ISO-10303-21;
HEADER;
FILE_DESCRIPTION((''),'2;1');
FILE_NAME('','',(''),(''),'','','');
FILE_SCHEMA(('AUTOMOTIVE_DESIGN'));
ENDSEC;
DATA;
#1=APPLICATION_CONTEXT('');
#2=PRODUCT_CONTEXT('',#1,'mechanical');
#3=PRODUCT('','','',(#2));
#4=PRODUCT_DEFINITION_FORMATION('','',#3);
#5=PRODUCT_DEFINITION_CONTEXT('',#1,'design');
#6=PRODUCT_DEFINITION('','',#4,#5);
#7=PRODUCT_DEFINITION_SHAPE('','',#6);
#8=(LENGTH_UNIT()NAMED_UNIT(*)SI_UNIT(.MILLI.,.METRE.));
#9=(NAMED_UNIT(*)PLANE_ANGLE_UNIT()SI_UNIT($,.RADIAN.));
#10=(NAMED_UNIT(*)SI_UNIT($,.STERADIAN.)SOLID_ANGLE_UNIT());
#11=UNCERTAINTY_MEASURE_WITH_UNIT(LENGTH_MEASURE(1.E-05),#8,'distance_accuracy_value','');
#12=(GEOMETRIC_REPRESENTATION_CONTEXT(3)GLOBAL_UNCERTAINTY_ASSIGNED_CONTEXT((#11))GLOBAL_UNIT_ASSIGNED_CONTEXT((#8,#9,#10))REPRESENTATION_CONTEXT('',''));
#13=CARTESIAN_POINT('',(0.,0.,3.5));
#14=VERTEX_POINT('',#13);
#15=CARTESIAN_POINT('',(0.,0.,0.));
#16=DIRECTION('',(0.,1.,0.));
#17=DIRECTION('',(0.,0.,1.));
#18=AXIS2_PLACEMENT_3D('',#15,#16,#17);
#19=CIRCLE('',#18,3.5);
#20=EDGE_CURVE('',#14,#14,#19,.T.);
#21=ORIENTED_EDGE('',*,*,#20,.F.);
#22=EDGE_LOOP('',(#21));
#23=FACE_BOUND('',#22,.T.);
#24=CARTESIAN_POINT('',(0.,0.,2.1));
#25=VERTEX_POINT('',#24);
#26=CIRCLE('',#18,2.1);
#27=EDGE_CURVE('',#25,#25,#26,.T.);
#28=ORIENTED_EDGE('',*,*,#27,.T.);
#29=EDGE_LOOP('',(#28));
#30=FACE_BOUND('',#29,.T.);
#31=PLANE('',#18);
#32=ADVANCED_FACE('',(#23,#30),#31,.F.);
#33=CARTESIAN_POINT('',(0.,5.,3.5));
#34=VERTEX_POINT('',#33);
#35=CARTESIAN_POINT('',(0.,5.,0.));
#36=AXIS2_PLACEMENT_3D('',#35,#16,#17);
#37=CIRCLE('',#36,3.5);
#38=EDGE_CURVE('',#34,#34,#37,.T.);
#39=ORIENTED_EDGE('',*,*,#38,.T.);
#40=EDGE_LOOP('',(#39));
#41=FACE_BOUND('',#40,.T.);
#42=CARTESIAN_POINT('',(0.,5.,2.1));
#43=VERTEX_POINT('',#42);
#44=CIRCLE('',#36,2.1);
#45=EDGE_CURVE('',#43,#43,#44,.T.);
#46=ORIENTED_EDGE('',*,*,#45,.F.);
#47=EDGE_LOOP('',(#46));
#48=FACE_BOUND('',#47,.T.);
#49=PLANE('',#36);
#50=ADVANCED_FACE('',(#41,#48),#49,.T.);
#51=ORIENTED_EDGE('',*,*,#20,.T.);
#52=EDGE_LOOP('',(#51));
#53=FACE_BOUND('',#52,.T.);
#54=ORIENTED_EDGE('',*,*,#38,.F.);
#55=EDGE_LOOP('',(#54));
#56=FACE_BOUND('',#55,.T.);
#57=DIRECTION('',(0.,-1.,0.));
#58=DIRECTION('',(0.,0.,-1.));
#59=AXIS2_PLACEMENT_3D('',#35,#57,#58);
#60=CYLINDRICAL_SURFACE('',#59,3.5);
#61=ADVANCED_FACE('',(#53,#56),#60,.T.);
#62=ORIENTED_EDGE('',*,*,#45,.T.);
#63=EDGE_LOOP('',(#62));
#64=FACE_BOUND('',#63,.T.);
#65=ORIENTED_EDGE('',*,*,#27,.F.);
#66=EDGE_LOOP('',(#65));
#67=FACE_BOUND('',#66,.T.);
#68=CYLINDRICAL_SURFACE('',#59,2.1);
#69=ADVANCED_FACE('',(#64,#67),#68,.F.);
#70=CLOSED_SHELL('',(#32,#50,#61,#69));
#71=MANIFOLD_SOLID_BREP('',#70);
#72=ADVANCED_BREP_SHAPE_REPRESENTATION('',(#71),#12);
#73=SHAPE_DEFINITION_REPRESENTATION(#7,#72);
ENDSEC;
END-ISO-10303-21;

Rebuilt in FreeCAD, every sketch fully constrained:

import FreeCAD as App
import Part
import Sketcher

V = App.Vector

doc = App.newDocument("Part")
body = doc.addObject("PartDesign::Body", "Body")

# Sketch on XZ plane
sketch1 = doc.addObject("Sketcher::SketchObject", "Sketch")
body.addObject(sketch1)
sketch1.AttachmentSupport = (doc.XZ_Plane, [""])
sketch1.MapMode = "FlatFace"
sketch1.addGeometry([
    Part.Circle(V(0, 0, 0), V(0, 0, 1), 3.5),
    Part.Circle(V(0, 0, 0), V(0, 0, 1), 2.1),
], False)
sketch1.addConstraint([
    Sketcher.Constraint("Coincident", 0, 3, -1, 1),
    Sketcher.Constraint("Coincident", 1, 3, -1, 1),
    Sketcher.Constraint("Diameter", 0, 7.0),
    Sketcher.Constraint("Diameter", 1, 4.2),
])
pad1 = doc.addObject("PartDesign::Pad", "Pad")
body.addObject(pad1)
pad1.Profile = sketch1
pad1.Length = 5
pad1.Reversed = True

doc.recompute()
